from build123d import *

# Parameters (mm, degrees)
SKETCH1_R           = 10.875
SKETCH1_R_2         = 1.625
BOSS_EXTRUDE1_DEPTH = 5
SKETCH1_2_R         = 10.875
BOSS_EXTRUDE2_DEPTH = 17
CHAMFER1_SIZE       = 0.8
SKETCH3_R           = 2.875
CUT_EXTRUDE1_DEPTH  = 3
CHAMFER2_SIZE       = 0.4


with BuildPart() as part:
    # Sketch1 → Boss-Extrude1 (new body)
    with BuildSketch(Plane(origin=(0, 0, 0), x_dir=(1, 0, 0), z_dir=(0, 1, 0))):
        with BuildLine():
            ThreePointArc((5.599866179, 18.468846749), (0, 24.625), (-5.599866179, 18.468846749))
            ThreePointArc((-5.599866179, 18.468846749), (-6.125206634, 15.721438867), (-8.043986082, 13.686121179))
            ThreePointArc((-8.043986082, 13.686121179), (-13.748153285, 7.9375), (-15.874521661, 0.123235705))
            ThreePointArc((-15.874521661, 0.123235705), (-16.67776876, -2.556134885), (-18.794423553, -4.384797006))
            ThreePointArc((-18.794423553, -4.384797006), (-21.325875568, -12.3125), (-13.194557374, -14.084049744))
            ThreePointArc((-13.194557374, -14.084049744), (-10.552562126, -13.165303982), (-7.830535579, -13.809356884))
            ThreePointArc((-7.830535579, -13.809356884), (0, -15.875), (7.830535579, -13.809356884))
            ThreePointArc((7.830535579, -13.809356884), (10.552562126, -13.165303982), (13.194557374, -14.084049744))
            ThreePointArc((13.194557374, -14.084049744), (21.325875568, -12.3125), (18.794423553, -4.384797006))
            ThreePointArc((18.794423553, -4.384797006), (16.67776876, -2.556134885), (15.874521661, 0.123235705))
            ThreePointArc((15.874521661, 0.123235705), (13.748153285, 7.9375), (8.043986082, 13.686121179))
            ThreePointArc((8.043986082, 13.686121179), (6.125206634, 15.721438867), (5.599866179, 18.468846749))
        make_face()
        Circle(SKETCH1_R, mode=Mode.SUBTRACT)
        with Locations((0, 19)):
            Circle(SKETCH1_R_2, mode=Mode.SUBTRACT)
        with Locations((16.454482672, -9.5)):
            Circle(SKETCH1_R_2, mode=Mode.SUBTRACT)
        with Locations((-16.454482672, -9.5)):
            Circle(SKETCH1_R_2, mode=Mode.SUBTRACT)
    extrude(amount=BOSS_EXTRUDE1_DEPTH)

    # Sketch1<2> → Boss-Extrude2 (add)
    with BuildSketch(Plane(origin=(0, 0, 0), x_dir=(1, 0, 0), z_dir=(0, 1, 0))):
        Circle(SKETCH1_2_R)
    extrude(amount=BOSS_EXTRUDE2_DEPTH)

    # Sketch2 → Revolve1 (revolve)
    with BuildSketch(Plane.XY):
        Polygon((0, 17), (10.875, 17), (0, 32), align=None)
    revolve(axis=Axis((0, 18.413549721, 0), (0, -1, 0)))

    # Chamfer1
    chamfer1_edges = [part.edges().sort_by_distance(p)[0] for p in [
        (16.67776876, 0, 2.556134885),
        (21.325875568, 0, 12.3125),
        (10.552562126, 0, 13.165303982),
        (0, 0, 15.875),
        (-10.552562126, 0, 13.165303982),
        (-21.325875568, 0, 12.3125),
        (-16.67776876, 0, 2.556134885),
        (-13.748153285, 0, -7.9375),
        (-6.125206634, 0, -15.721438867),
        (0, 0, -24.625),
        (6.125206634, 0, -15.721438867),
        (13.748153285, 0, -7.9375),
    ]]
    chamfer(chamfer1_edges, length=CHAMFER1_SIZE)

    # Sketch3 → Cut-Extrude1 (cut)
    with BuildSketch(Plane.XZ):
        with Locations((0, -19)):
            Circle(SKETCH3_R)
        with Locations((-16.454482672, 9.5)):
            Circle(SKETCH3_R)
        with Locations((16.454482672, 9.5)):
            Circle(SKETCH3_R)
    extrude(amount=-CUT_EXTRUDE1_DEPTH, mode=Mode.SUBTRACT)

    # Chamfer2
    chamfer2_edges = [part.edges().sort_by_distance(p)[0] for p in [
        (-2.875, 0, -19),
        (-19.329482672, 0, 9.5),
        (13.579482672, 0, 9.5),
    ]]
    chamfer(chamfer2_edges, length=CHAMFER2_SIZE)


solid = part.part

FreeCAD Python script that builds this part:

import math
import FreeCAD as App
import Part
import Sketcher
Q = App.Units.Quantity


def edges_at(feature, points):
    """Names of the edges that pass closest to the given points."""
    edges = feature.Shape.Edges
    near = lambda p: min(range(len(edges)), key=lambda i: edges[i].distToShape(Part.Vertex(*p))[0])
    return sorted({f"Edge{near(p) + 1}" for p in points})


def add_polygon(sketch, points):
    """Adds a closed chain of lines whose ends are joined by coincident constraints."""
    first, n = sketch.GeometryCount, len(points)
    for a, b in zip(points, points[1:] + points[:1]):
        sketch.addGeometry(Part.LineSegment(App.Vector(*a, 0), App.Vector(*b, 0)), False)
    for i in range(n):
        sketch.addConstraint(Sketcher.Constraint("Coincident", first + i, 2, first + (i + 1) % n, 1))

doc = App.newDocument("Part")
params = doc.addObject("Spreadsheet::Sheet", "Params")
for row, (alias, value) in enumerate([
    ("sketch1_radius", "5 mm"),
    ("sketch1_diameter", "3.25 mm"),
    ("sketch1_diameter2", "21.75 mm"),
    ("pad1_length", "5 mm"),
    ("sketch2_diameter", "21.75 mm"),
    ("pad2_length", "17 mm"),
    ("sketch3_height", "15 mm"),
    ("revolution_angle", "360 deg"),
    ("chamfer_size", "0.8 mm"),
    ("sketch4_diameter", "5.75 mm"),
    ("pocket1_length", "3 mm"),
    ("chamfer2_size", "0.4 mm"),
], start=1):
    params.set(f"A{row}", alias)
    params.set(f"B{row}", "=" + value)
    params.setAlias(f"B{row}", alias)

body = doc.addObject("PartDesign::Body", "Body")

sketch1 = body.newObject("Sketcher::SketchObject", "Sketch")
sketch1.AttachmentSupport = (doc.getObject("XZ_Plane"), [""])
sketch1.MapMode = "FlatFace"
sketch1.addGeometry(Part.ArcOfCircle(Part.Circle(App.Vector(0, -19, 0), App.Vector(0, 0, 1), 5.625), math.radians(174.581645), math.radians(365.418355)), False)
sketch1.addGeometry(Part.ArcOfCircle(Part.Circle(App.Vector(-10.577525, -17.996711, 0), App.Vector(0, 0, 1), 5), math.radians(-5.418355), math.radians(59.555215)), False)
sketch1.addGeometry(Part.ArcOfCircle(Part.Circle(App.Vector(0, 0, 0), App.Vector(0, 0, 1), 15.875), math.radians(-179.555215), math.radians(-120.444785)), False)
sketch1.addGeometry(Part.ArcOfCircle(Part.Circle(App.Vector(-20.874371, -0.16205, 0), App.Vector(0, 0, 1), 5), math.radians(0.444785), math.radians(65.418355)), False)
sketch1.addGeometry(Part.ArcOfCircle(Part.Circle(App.Vector(-16.454483, 9.5, 0), App.Vector(0, 0, 1), 5.625), math.radians(54.581645), math.radians(245.418355)), False)
sketch1.addGeometry(Part.ArcOfCircle(Part.Circle(App.Vector(-10.296846, 18.158761, 0), App.Vector(0, 0, 1), 5), math.radians(-125.418355), math.radians(-60.444785)), False)
sketch1.addGeometry(Part.ArcOfCircle(Part.Circle(App.Vector(0, 0, 0), App.Vector(0, 0, 1), 15.875), math.radians(60.444785), math.radians(119.555215)), False)
sketch1.addGeometry(Part.ArcOfCircle(Part.Circle(App.Vector(10.296846, 18.158761, 0), App.Vector(0, 0, 1), 5), math.radians(-119.555215), math.radians(-54.581645)), False)
sketch1.addGeometry(Part.ArcOfCircle(Part.Circle(App.Vector(16.454483, 9.5, 0), App.Vector(0, 0, 1), 5.625), math.radians(-65.418355), math.radians(125.418355)), False)
sketch1.addGeometry(Part.ArcOfCircle(Part.Circle(App.Vector(20.874371, -0.16205, 0), App.Vector(0, 0, 1), 5), math.radians(114.581645), math.radians(179.555215)), False)
sketch1.addGeometry(Part.ArcOfCircle(Part.Circle(App.Vector(0, 0, 0), App.Vector(0, 0, 1), 15.875), math.radians(-59.555215), math.radians(-0.444785)), False)
sketch1.addGeometry(Part.ArcOfCircle(Part.Circle(App.Vector(10.577525, -17.996711, 0), App.Vector(0, 0, 1), 5), math.radians(120.444785), math.radians(185.418355)), False)
sketch1.addGeometry(Part.Circle(App.Vector(-16.454483, 9.5, 0), App.Vector(0, 0, 1), 1.625), False)
sketch1.addGeometry(Part.Circle(App.Vector(0, 0, 0), App.Vector(0, 0, 1), 10.875), False)
sketch1.addGeometry(Part.Circle(App.Vector(16.454483, 9.5, 0), App.Vector(0, 0, 1), 1.625), False)
sketch1.addGeometry(Part.Circle(App.Vector(0, -19, 0), App.Vector(0, 0, 1), 1.625), False)
sketch1.addConstraint(Sketcher.Constraint("Tangent", 0, 1, 1, 1))
sketch1.addConstraint(Sketcher.Constraint("Tangent", 1, 2, 2, 2))
sketch1.addConstraint(Sketcher.Constraint("Tangent", 2, 1, 3, 1))
sketch1.addConstraint(Sketcher.Constraint("Tangent", 3, 2, 4, 2))
sketch1.addConstraint(Sketcher.Constraint("Tangent", 4, 1, 5, 1))
sketch1.addConstraint(Sketcher.Constraint("Tangent", 5, 2, 6, 2))
sketch1.addConstraint(Sketcher.Constraint("Tangent", 6, 1, 7, 1))
sketch1.addConstraint(Sketcher.Constraint("Tangent", 7, 2, 8, 2))
sketch1.addConstraint(Sketcher.Constraint("Tangent", 8, 1, 9, 1))
sketch1.addConstraint(Sketcher.Constraint("Tangent", 9, 2, 10, 2))
sketch1.addConstraint(Sketcher.Constraint("Tangent", 10, 1, 11, 1))
sketch1.addConstraint(Sketcher.Constraint("Tangent", 11, 2, 0, 2))
sketch1.addConstraint(Sketcher.Constraint("Coincident", 2, 3, -1, 1))
sketch1.addConstraint(Sketcher.Constraint("Coincident", 6, 3, -1, 1))
sketch1.addConstraint(Sketcher.Constraint("Coincident", 10, 3, -1, 1))
sketch1.addConstraint(Sketcher.Constraint("Coincident", 13, 3, -1, 1))
sketch1.addConstraint(Sketcher.Constraint("Coincident", 12, 3, 4, 3))
sketch1.addConstraint(Sketcher.Constraint("Coincident", 14, 3, 8, 3))
sketch1.addConstraint(Sketcher.Constraint("Coincident", 15, 3, 0, 3))
sketch1.addConstraint(Sketcher.Constraint("Equal", 1, 3))
sketch1.addConstraint(Sketcher.Constraint("Equal", 0, 4))
sketch1.addConstraint(Sketcher.Constraint("Equal", 3, 5))
sketch1.addConstraint(Sketcher.Constraint("Equal", 2, 6))
sketch1.addConstraint(Sketcher.Constraint("Equal", 5, 7))
sketch1.addConstraint(Sketcher.Constraint("Equal", 4, 8))
sketch1.addConstraint(Sketcher.Constraint("Equal", 7, 9))
sketch1.addConstraint(Sketcher.Constraint("Equal", 6, 10))
sketch1.addConstraint(Sketcher.Constraint("Equal", 9, 11))
sketch1.addConstraint(Sketcher.Constraint("Equal", 12, 14))
sketch1.addConstraint(Sketcher.Constraint("Equal", 14, 15))
sketch1.addConstraint(Sketcher.Constraint("Symmetric", 4, 3, 8, 3, -2))
sketch1.addConstraint(Sketcher.Constraint("PointOnObject", 0, 3, -2))
sketch1.addConstraint(Sketcher.Constraint("Radius", 1, Q("5 mm")))
sketch1.addConstraint(Sketcher.Constraint("Diameter", 12, Q("3.25 mm")))
sketch1.addConstraint(Sketcher.Constraint("Diameter", 13, Q("21.75 mm")))
sketch1.addConstraint(Sketcher.Constraint("DistanceY", 0, 3, -1, 1, Q("19 mm")))
sketch1.addConstraint(Sketcher.Constraint("Radius", 0, Q("5.625 mm")))
sketch1.addConstraint(Sketcher.Constraint("Radius", 2, Q("15.875 mm")))
sketch1.addConstraint(Sketcher.Constraint("DistanceY", -1, 1, 4, 3, Q("9.5 mm")))
sketch1.addConstraint(Sketcher.Constraint("DistanceX", 3, 2, 2, 1, Q("2.919902 mm")))
sketch1.setExpression("Constraints[32]", "Params.sketch1_radius")
sketch1.setExpression("Constraints[33]", "Params.sketch1_diameter")
sketch1.setExpression("Constraints[34]", "Params.sketch1_diameter2")
pad1 = body.newObject("PartDesign::Pad", "Pad")
pad1.Profile = sketch1
pad1.setExpression("Length", "Params.pad1_length")
pad1.Reversed = True

sketch2 = body.newObject("Sketcher::SketchObject", "Sketch001")
sketch2.AttachmentSupport = (doc.getObject("XZ_Plane"), [""])
sketch2.MapMode = "FlatFace"
sketch2.addGeometry(Part.Circle(App.Vector(0, 0, 0), App.Vector(0, 0, 1), 10.875), False)
sketch2.addConstraint(Sketcher.Constraint("Coincident", 0, 3, -1, 1))
sketch2.addConstraint(Sketcher.Constraint("Diameter", 0, Q("21.75 mm")))
sketch2.setExpression("Constraints[1]", "Params.sketch2_diameter")
pad2 = body.newObject("PartDesign::Pad", "Pad001")
pad2.Profile = sketch2
pad2.setExpression("Length", "Params.pad2_length")
pad2.Reversed = True

sketch3 = body.newObject("Sketcher::SketchObject", "Sketch002")
sketch3.AttachmentSupport = (doc.getObject("XY_Plane"), [""])
sketch3.MapMode = "FlatFace"
add_polygon(sketch3, [(0, 17), (10.875, 17), (0, 32)])
sketch3.addConstraint(Sketcher.Constraint("Horizontal", 0))
sketch3.addConstraint(Sketcher.Constraint("Vertical", 2))
sketch3.addConstraint(Sketcher.Constraint("PointOnObject", 1, 2, -2))
sketch3.addConstraint(Sketcher.Constraint("DistanceY", 2, 2, 2, 1, Q("15 mm")))
sketch3.addConstraint(Sketcher.Constraint("DistanceY", -1, 1, 0, 2, Q("17 mm")))
sketch3.addConstraint(Sketcher.Constraint("DistanceX", 0, 1, 0, 2, Q("10.875 mm")))
sketch3.setExpression("Constraints[6]", "Params.sketch3_height")
revolution = body.newObject("PartDesign::Revolution", "Revolution")
revolution.Profile = sketch3
revolution.ReferenceAxis = (sketch3, ["V_Axis"])
revolution.setExpression("Angle", "Params.revolution_angle")
doc.recompute()

chamfer = body.newObject("PartDesign::Chamfer", "Chamfer")
chamfer.Base = (revolution, edges_at(revolution, [
    (16.678, 0, 2.556),
    (21.326, 0, 12.312),
    (10.553, 0, 13.165),
    (0, 0, 15.875),
    (-10.553, 0, 13.165),
    (-21.326, 0, 12.312),
    (-16.678, 0, 2.556),
    (-13.748, 0, -7.938),
    (-6.125, 0, -15.721),
    (0, 0, -24.625),
    (6.125, 0, -15.721),
    (13.748, 0, -7.938),
]))
chamfer.setExpression("Size", "Params.chamfer_size")

sketch4 = body.newObject("Sketcher::SketchObject", "Sketch003")
sketch4.AttachmentSupport = (doc.getObject("XZ_Plane"), [""])
sketch4.MapMode = "FlatFace"
sketch4.addGeometry(Part.Circle(App.Vector(0, -19, 0), App.Vector(0, 0, 1), 2.875), False)
sketch4.addGeometry(Part.Circle(App.Vector(-16.454483, 9.5, 0), App.Vector(0, 0, 1), 2.875), False)
sketch4.addGeometry(Part.Circle(App.Vector(16.454483, 9.5, 0), App.Vector(0, 0, 1), 2.875), False)
sketch4.addConstraint(Sketcher.Constraint("Equal", 0, 1))
sketch4.addConstraint(Sketcher.Constraint("Equal", 1, 2))
sketch4.addConstraint(Sketcher.Constraint("Symmetric", 1, 3, 2, 3, -2))
sketch4.addConstraint(Sketcher.Constraint("PointOnObject", 0, 3, -2))
sketch4.addConstraint(Sketcher.Constraint("Diameter", 0, Q("5.75 mm")))
sketch4.addConstraint(Sketcher.Constraint("DistanceY", 0, 3, -1, 1, Q("19 mm")))
sketch4.addConstraint(Sketcher.Constraint("DistanceY", -1, 1, 1, 3, Q("9.5 mm")))
sketch4.addConstraint(Sketcher.Constraint("DistanceX", 1, 3, -1, 1, Q("16.454483 mm")))
sketch4.setExpression("Constraints[4]", "Params.sketch4_diameter")
pocket1 = body.newObject("PartDesign::Pocket", "Pocket")
pocket1.Profile = sketch4
pocket1.setExpression("Length", "Params.pocket1_length")
doc.recompute()

chamfer2 = body.newObject("PartDesign::Chamfer", "Chamfer001")
chamfer2.Base = (pocket1, edges_at(pocket1, [(-2.875, 0, -19), (-19.329, 0, 9.5), (13.579, 0, 9.5)]))
chamfer2.setExpression("Size", "Params.chamfer2_size")

doc.recompute()
